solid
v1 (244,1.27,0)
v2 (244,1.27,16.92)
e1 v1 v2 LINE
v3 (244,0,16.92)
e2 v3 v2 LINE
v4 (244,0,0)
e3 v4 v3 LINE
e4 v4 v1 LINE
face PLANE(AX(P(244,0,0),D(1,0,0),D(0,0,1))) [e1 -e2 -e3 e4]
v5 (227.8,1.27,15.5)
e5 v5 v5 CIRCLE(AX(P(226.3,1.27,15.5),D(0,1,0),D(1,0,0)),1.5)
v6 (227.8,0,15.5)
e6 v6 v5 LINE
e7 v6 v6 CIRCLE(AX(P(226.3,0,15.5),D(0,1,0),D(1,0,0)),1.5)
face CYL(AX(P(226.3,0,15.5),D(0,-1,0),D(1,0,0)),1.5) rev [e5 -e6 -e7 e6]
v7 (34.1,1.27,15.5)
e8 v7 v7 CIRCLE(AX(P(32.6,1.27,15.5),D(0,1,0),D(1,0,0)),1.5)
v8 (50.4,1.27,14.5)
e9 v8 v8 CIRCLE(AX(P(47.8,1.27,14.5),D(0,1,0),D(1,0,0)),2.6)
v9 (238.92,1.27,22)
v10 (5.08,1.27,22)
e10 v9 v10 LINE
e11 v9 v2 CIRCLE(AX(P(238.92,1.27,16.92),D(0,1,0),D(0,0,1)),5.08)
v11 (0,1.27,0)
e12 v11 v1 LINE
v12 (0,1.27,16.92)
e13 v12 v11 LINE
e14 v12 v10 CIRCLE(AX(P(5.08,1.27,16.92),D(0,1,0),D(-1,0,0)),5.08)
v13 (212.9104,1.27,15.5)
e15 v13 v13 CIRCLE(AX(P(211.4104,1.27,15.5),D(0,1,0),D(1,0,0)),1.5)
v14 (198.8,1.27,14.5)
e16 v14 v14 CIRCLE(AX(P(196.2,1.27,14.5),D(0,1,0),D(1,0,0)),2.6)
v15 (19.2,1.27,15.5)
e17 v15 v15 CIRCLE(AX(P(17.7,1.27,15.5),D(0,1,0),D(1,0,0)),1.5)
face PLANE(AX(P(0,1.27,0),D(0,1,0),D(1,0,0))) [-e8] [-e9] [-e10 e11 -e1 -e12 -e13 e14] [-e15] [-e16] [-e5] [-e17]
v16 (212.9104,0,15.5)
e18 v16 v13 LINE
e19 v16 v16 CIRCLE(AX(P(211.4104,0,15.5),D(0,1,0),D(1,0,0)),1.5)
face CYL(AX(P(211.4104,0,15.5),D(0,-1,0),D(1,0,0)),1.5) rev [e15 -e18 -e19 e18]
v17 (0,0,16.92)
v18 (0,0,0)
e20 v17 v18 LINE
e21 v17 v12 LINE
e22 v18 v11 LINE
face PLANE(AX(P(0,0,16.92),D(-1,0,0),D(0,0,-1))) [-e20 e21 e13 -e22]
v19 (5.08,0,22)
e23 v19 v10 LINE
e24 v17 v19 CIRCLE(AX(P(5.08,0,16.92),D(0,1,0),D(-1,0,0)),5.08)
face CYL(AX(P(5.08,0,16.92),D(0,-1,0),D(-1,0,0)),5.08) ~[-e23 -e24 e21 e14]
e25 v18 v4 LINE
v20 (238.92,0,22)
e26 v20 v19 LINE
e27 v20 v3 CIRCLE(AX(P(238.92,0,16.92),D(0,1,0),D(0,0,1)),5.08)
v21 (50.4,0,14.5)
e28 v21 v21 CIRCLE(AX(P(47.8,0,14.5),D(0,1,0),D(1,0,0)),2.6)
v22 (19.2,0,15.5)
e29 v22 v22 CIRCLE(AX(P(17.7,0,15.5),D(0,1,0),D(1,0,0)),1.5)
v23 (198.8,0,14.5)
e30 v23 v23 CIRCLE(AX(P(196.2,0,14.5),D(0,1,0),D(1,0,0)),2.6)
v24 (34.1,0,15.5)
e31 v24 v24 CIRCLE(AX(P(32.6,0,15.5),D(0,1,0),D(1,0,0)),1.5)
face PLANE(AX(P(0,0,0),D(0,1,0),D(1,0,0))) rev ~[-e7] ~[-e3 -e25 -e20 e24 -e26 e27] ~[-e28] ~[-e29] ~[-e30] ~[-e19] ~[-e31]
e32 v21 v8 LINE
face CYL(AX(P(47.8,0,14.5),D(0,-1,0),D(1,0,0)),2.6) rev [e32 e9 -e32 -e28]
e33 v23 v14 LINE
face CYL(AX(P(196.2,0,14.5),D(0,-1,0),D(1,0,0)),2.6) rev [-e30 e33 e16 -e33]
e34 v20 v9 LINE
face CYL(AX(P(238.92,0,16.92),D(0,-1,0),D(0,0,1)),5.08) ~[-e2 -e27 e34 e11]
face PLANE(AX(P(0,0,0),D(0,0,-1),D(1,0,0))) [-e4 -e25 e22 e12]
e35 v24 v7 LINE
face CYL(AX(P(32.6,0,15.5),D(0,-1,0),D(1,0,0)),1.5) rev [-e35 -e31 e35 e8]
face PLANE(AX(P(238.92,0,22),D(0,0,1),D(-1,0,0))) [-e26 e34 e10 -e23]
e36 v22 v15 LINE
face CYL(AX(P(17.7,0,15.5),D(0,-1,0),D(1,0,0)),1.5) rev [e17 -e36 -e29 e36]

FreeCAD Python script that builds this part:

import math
import FreeCAD as App
import Part
import Sketcher

V = App.Vector
Q = App.Units.Quantity

doc = App.newDocument("Part")
params = doc.addObject("Spreadsheet::Sheet", "Params")
for row, (alias, value) in enumerate([
    ("sketch1_radius", "0.2 in"),
    ("pad1_length", "0.05 in"),
], start=1):
    params.set(f"A{row}", alias)
    params.set(f"B{row}", "=" + value)
    params.setAlias(f"B{row}", alias)

body = doc.addObject("PartDesign::Body", "Body")

# Sketch on XZ plane
sketch1 = body.newObject("Sketcher::SketchObject", "Sketch")
sketch1.AttachmentSupport = (doc.getObject("XZ_Plane"), [""])
sketch1.MapMode = "FlatFace"
sketch1.addGeometry(Part.LineSegment(V(244, 0, 0), V(0, 0, 0)), False)
sketch1.addGeometry(Part.LineSegment(V(0, 0, 0), V(0, 16.9, 0)), False)
sketch1.addGeometry(Part.ArcOfCircle(Part.Circle(V(5.1, 16.9, 0), V(0, 0, 1), 5.1), math.radians(90), math.radians(180)), False)
sketch1.addGeometry(Part.LineSegment(V(5.1, 22, 0), V(238.9, 22, 0)), False)
sketch1.addGeometry(Part.ArcOfCircle(Part.Circle(V(238.9, 16.9, 0), V(0, 0, 1), 5.1), math.radians(0), math.radians(90)), False)
sketch1.addGeometry(Part.LineSegment(V(244, 16.9, 0), V(244, 0, 0)), False)
sketch1.addGeometry(Part.Circle(V(17.7, 15.5, 0), V(0, 0, 1), 1.5), False)
sketch1.addGeometry(Part.Circle(V(32.6, 15.5, 0), V(0, 0, 1), 1.5), False)
sketch1.addGeometry(Part.Circle(V(47.8, 14.5, 0), V(0, 0, 1), 2.6), False)
sketch1.addGeometry(Part.Circle(V(211.4, 15.5, 0), V(0, 0, 1), 1.5), False)
sketch1.addGeometry(Part.Circle(V(196.2, 14.5, 0), V(0, 0, 1), 2.6), False)
sketch1.addGeometry(Part.Circle(V(226.3, 15.5, 0), V(0, 0, 1), 1.5), False)
sketch1.addConstraint(Sketcher.Constraint("Coincident", 0, 2, 1, 1))
sketch1.addConstraint(Sketcher.Constraint("Tangent", 1, 2, 2, 2))
sketch1.addConstraint(Sketcher.Constraint("Tangent", 2, 1, 3, 1))
sketch1.addConstraint(Sketcher.Constraint("Tangent", 3, 2, 4, 2))
sketch1.addConstraint(Sketcher.Constraint("Tangent", 4, 1, 5, 1))
sketch1.addConstraint(Sketcher.Constraint("Coincident", 5, 2, 0, 1))
sketch1.addConstraint(Sketcher.Constraint("Horizontal", 0))
sketch1.addConstraint(Sketcher.Constraint("Vertical", 1))
sketch1.addConstraint(Sketcher.Constraint("Horizontal", 3))
sketch1.addConstraint(Sketcher.Constraint("Vertical", 5))
sketch1.addConstraint(Sketcher.Constraint("Coincident", 0, 2, -1, 1))
sketch1.addConstraint(Sketcher.Constraint("Equal", 2, 4))
sketch1.addConstraint(Sketcher.Constraint("Equal", 6, 7))
sketch1.addConstraint(Sketcher.Constraint("Equal", 7, 9))
sketch1.addConstraint(Sketcher.Constraint("Equal", 8, 10))
sketch1.addConstraint(Sketcher.Constraint("Equal", 9, 11))
sketch1.addConstraint(Sketcher.Constraint("Horizontal", 6, 3, 7, 3))
sketch1.addConstraint(Sketcher.Constraint("Horizontal", 7, 3, 9, 3))
sketch1.addConstraint(Sketcher.Constraint("Horizontal", 8, 3, 10, 3))
sketch1.addConstraint(Sketcher.Constraint("Horizontal", 9, 3, 11, 3))
sketch1.addConstraint(Sketcher.Constraint("Radius", 2, Q("0.2 in")))
sketch1.addConstraint(Sketcher.Constraint("Diameter", 6, Q("0.1181 in")))
sketch1.addConstraint(Sketcher.Constraint("Diameter", 8, Q("5.2 mm")))
sketch1.addConstraint(Sketcher.Constraint("DistanceX", 0, 2, 0, 1, Q("9.6063 in")))
sketch1.addConstraint(Sketcher.Constraint("DistanceY", -1, 1, 2, 1, Q("22 mm")))
sketch1.addConstraint(Sketcher.Constraint("DistanceX", -1, 1, 8, 3, Q("1.8819 in")))
sketch1.addConstraint(Sketcher.Constraint("DistanceX", -1, 1, 10, 3, Q("7.7244 in")))
sketch1.addConstraint(Sketcher.Constraint("DistanceY", 6, 3, 2, 3, Q("0.0559 in")))
sketch1.addConstraint(Sketcher.Constraint("DistanceX", 6, 3, 9, 3, Q("7.6264 in")))
sketch1.addConstraint(Sketcher.Constraint("DistanceX", 9, 3, 11, 3, Q("0.5862 in")))
sketch1.addConstraint(Sketcher.Constraint("DistanceX", -1, 1, 6, 3, Q("17.7 mm")))
sketch1.addConstraint(Sketcher.Constraint("DistanceX", -1, 1, 7, 3, Q("32.6 mm")))
sketch1.addConstraint(Sketcher.Constraint("DistanceY", -1, 1, 8, 3, Q("14.5 mm")))
sketch1.setExpression("Constraints[20]", "Params.sketch1_radius")
pad1 = body.newObject("PartDesign::Pad", "Pad")
pad1.Profile = sketch1
pad1.setExpression("Length", "Params.pad1_length")
pad1.Reversed = True

doc.recompute()
